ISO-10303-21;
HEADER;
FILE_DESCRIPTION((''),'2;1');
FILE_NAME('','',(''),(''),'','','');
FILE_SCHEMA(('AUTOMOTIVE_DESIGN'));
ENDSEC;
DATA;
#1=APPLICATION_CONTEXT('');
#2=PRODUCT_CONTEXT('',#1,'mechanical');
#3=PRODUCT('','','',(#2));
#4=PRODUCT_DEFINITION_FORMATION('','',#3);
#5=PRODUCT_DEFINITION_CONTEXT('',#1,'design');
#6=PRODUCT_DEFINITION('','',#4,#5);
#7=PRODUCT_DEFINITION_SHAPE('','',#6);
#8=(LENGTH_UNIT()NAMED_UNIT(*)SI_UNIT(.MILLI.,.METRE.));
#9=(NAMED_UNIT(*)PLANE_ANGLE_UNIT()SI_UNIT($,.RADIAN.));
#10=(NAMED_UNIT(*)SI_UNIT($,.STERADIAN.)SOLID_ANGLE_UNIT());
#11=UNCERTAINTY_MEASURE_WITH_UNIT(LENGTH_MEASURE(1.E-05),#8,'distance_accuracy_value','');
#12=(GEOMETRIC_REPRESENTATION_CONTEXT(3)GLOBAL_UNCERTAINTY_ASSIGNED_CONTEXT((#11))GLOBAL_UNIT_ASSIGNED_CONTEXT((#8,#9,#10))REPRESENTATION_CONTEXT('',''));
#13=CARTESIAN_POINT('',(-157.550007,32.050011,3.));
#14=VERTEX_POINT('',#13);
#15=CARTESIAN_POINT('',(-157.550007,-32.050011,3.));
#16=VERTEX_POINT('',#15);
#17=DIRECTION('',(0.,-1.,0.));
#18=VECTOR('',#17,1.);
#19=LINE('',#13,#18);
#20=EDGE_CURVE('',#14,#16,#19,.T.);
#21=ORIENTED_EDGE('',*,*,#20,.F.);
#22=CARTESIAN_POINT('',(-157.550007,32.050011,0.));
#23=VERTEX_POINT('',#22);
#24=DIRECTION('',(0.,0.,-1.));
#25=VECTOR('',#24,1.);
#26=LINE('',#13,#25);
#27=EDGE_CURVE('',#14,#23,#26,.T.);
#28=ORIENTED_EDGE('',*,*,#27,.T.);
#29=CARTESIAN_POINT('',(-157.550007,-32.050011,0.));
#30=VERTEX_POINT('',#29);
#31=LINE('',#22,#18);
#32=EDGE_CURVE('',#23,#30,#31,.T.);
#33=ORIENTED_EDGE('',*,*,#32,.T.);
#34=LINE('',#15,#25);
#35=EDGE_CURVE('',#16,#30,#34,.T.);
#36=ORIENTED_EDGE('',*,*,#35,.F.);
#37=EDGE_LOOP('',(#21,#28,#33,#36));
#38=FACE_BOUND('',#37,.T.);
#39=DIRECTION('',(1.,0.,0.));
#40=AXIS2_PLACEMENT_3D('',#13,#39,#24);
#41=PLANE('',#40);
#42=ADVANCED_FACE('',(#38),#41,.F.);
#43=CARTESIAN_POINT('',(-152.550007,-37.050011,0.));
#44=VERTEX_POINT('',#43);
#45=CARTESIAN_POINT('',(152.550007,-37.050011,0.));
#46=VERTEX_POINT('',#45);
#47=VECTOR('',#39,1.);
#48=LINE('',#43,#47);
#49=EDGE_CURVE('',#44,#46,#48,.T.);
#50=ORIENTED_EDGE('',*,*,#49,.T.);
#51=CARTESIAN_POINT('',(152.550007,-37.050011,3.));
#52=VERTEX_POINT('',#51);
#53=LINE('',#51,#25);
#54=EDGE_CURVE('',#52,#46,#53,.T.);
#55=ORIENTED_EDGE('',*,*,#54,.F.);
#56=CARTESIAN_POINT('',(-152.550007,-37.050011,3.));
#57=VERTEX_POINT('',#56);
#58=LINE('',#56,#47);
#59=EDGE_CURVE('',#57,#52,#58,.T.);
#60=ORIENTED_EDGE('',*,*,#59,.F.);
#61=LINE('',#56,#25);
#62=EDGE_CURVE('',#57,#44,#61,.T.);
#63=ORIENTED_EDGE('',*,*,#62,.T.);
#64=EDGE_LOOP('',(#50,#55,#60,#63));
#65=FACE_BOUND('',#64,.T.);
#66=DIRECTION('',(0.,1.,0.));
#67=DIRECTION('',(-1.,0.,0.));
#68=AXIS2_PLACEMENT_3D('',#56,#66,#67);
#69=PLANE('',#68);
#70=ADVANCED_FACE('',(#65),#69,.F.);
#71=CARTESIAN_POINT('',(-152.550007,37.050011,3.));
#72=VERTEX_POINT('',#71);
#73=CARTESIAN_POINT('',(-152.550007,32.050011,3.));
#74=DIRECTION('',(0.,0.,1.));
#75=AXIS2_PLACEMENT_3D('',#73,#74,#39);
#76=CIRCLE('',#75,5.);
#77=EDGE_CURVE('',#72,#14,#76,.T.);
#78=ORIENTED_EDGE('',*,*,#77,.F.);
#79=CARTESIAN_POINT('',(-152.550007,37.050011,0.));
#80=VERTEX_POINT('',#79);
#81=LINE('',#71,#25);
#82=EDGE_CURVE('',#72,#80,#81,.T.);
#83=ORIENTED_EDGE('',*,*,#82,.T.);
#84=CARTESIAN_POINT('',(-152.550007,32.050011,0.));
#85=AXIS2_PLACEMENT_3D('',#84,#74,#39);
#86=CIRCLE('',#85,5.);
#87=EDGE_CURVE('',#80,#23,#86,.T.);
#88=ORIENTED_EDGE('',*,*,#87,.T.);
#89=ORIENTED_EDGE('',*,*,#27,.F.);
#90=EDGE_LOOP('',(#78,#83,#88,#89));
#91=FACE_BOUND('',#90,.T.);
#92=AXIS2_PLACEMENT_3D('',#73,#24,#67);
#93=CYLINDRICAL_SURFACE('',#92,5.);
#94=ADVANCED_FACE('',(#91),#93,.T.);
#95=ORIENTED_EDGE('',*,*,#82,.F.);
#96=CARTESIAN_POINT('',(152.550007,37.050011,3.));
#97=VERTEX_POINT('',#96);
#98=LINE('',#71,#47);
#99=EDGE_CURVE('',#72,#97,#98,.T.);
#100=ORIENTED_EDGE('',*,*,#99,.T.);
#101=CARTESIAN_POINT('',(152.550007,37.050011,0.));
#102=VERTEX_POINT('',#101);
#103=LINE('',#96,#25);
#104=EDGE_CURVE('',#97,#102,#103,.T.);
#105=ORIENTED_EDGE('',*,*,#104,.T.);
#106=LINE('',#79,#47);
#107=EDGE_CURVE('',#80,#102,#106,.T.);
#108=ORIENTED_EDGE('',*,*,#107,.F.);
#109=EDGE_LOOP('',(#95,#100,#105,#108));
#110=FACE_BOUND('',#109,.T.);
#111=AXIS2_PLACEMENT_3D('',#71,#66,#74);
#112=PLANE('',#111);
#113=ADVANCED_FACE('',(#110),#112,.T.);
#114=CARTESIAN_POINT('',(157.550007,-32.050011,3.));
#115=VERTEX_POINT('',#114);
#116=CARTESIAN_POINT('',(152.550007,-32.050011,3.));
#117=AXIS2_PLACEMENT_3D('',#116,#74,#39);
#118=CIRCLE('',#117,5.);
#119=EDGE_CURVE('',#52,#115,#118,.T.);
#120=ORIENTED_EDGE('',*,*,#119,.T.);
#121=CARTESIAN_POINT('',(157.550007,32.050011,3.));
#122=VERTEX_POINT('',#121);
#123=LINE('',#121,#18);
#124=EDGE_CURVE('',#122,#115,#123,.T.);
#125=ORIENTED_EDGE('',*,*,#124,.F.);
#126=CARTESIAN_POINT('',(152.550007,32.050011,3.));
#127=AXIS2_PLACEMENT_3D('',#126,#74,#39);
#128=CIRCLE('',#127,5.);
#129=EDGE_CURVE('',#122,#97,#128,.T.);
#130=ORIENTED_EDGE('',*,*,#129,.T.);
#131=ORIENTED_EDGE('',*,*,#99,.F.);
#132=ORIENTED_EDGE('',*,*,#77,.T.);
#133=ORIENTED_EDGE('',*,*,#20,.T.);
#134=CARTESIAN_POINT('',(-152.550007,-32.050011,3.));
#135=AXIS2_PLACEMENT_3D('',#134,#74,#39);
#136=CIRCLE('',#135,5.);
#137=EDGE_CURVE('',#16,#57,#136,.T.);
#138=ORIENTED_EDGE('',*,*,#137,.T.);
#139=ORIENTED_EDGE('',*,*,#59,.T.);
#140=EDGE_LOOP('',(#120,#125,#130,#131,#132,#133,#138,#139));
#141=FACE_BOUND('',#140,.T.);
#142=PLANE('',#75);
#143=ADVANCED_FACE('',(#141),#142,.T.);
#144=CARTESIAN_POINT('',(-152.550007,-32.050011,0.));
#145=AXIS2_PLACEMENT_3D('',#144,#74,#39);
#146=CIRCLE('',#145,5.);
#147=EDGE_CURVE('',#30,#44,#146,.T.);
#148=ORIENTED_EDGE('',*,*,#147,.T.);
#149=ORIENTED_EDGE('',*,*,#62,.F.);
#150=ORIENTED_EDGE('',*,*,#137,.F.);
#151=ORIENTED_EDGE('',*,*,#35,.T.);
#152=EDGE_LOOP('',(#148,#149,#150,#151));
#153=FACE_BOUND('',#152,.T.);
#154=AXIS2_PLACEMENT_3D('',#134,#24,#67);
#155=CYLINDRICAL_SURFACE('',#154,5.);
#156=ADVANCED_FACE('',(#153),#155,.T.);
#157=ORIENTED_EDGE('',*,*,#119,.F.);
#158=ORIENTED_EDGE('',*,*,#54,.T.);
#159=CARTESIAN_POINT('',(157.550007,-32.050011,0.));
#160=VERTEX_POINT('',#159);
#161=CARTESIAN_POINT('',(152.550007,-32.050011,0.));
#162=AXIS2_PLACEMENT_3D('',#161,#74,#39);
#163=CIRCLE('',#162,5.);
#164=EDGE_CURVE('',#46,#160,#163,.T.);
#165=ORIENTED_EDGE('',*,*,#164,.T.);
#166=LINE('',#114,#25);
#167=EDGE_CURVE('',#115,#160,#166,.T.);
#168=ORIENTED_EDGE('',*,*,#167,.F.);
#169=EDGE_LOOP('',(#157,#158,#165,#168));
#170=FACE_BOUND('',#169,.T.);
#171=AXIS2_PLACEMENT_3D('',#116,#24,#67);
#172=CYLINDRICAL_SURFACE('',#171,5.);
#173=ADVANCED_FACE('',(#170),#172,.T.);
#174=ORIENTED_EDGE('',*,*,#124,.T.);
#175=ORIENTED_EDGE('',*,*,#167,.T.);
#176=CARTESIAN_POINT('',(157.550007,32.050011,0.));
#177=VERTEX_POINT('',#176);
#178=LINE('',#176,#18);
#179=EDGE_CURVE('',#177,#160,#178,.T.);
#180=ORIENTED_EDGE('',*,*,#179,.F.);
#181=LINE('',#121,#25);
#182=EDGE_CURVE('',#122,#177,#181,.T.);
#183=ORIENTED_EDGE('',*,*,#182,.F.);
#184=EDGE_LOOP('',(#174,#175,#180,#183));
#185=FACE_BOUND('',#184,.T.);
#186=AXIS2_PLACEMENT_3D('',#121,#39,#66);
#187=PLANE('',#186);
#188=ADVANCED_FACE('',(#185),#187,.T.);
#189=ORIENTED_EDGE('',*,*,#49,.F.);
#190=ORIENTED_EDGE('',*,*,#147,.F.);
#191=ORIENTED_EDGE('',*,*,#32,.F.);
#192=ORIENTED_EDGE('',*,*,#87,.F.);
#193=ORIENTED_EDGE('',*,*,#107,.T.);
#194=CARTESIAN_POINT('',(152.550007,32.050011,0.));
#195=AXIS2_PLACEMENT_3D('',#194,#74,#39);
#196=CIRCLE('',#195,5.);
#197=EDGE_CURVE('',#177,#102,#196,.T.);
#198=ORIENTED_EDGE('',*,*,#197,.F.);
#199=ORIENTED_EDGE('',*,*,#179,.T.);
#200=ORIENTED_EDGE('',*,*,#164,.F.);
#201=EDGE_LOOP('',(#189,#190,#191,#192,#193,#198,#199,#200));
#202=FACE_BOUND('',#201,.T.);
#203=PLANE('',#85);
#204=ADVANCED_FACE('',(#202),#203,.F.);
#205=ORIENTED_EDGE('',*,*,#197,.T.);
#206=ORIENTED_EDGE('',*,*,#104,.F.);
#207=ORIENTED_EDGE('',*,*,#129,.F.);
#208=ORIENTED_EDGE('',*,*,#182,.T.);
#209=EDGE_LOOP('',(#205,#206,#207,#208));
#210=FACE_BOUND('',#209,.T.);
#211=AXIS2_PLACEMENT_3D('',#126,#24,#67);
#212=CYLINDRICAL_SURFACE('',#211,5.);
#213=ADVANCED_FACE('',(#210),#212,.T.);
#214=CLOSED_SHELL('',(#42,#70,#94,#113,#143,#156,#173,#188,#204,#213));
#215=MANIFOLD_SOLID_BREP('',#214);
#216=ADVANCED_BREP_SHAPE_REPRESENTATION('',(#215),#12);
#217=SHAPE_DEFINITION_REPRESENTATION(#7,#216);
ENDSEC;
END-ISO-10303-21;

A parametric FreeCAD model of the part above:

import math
import FreeCAD as App
import Part
import Sketcher
Q = App.Units.Quantity

doc = App.newDocument("Part")
body = doc.addObject("PartDesign::Body", "Body")

sketch1 = body.newObject("Sketcher::SketchObject", "Sketch")
sketch1.AttachmentSupport = (doc.getObject("XY_Plane"), [""])
sketch1.MapMode = "FlatFace"
sketch1.addGeometry([
    Part.LineSegment(App.Vector(-153, -37, 0), App.Vector(153, -37, 0)),
    Part.ArcOfCircle(Part.Circle(App.Vector(153, -32, 0), App.Vector(0, 0, 1), 5), math.radians(-90), math.radians(0)),
    Part.LineSegment(App.Vector(158, -32, 0), App.Vector(158, 32, 0)),
    Part.ArcOfCircle(Part.Circle(App.Vector(153, 32, 0), App.Vector(0, 0, 1), 5), math.radians(0), math.radians(90)),
    Part.LineSegment(App.Vector(153, 37, 0), App.Vector(-153, 37, 0)),
    Part.ArcOfCircle(Part.Circle(App.Vector(-153, 32, 0), App.Vector(0, 0, 1), 5), math.radians(90), math.radians(180)),
    Part.LineSegment(App.Vector(-158, 32, 0), App.Vector(-158, -32, 0)),
    Part.ArcOfCircle(Part.Circle(App.Vector(-153, -32, 0), App.Vector(0, 0, 1), 5), math.radians(180), math.radians(270)),
], False)
sketch1.addConstraint([
    Sketcher.Constraint("Tangent", 0, 2, 1, 1),
    Sketcher.Constraint("Tangent", 1, 2, 2, 1),
    Sketcher.Constraint("Tangent", 2, 2, 3, 1),
    Sketcher.Constraint("Tangent", 3, 2, 4, 1),
    Sketcher.Constraint("Tangent", 4, 2, 5, 1),
    Sketcher.Constraint("Tangent", 5, 2, 6, 1),
    Sketcher.Constraint("Tangent", 6, 2, 7, 1),
    Sketcher.Constraint("Tangent", 7, 2, 0, 1),
    Sketcher.Constraint("Horizontal", 0),
    Sketcher.Constraint("Vertical", 2),
    Sketcher.Constraint("Horizontal", 4),
    Sketcher.Constraint("Vertical", 6),
    Sketcher.Constraint("Equal", 1, 3),
    Sketcher.Constraint("Equal", 3, 5),
    Sketcher.Constraint("Equal", 5, 7),
    Sketcher.Constraint("Symmetric", 1, 3, 5, 3, -1, 1),
    Sketcher.Constraint("Radius", 1, Q("5 mm")),
    Sketcher.Constraint("DistanceY", 2, 1, 2, 2, Q("64.100022 mm")),
    Sketcher.Constraint("DistanceX", 0, 1, 0, 2, Q("305.100014 mm")),
])
pad1 = body.newObject("PartDesign::Pad", "Pad")
pad1.Profile = sketch1
pad1.Length = 3

doc.recompute()
